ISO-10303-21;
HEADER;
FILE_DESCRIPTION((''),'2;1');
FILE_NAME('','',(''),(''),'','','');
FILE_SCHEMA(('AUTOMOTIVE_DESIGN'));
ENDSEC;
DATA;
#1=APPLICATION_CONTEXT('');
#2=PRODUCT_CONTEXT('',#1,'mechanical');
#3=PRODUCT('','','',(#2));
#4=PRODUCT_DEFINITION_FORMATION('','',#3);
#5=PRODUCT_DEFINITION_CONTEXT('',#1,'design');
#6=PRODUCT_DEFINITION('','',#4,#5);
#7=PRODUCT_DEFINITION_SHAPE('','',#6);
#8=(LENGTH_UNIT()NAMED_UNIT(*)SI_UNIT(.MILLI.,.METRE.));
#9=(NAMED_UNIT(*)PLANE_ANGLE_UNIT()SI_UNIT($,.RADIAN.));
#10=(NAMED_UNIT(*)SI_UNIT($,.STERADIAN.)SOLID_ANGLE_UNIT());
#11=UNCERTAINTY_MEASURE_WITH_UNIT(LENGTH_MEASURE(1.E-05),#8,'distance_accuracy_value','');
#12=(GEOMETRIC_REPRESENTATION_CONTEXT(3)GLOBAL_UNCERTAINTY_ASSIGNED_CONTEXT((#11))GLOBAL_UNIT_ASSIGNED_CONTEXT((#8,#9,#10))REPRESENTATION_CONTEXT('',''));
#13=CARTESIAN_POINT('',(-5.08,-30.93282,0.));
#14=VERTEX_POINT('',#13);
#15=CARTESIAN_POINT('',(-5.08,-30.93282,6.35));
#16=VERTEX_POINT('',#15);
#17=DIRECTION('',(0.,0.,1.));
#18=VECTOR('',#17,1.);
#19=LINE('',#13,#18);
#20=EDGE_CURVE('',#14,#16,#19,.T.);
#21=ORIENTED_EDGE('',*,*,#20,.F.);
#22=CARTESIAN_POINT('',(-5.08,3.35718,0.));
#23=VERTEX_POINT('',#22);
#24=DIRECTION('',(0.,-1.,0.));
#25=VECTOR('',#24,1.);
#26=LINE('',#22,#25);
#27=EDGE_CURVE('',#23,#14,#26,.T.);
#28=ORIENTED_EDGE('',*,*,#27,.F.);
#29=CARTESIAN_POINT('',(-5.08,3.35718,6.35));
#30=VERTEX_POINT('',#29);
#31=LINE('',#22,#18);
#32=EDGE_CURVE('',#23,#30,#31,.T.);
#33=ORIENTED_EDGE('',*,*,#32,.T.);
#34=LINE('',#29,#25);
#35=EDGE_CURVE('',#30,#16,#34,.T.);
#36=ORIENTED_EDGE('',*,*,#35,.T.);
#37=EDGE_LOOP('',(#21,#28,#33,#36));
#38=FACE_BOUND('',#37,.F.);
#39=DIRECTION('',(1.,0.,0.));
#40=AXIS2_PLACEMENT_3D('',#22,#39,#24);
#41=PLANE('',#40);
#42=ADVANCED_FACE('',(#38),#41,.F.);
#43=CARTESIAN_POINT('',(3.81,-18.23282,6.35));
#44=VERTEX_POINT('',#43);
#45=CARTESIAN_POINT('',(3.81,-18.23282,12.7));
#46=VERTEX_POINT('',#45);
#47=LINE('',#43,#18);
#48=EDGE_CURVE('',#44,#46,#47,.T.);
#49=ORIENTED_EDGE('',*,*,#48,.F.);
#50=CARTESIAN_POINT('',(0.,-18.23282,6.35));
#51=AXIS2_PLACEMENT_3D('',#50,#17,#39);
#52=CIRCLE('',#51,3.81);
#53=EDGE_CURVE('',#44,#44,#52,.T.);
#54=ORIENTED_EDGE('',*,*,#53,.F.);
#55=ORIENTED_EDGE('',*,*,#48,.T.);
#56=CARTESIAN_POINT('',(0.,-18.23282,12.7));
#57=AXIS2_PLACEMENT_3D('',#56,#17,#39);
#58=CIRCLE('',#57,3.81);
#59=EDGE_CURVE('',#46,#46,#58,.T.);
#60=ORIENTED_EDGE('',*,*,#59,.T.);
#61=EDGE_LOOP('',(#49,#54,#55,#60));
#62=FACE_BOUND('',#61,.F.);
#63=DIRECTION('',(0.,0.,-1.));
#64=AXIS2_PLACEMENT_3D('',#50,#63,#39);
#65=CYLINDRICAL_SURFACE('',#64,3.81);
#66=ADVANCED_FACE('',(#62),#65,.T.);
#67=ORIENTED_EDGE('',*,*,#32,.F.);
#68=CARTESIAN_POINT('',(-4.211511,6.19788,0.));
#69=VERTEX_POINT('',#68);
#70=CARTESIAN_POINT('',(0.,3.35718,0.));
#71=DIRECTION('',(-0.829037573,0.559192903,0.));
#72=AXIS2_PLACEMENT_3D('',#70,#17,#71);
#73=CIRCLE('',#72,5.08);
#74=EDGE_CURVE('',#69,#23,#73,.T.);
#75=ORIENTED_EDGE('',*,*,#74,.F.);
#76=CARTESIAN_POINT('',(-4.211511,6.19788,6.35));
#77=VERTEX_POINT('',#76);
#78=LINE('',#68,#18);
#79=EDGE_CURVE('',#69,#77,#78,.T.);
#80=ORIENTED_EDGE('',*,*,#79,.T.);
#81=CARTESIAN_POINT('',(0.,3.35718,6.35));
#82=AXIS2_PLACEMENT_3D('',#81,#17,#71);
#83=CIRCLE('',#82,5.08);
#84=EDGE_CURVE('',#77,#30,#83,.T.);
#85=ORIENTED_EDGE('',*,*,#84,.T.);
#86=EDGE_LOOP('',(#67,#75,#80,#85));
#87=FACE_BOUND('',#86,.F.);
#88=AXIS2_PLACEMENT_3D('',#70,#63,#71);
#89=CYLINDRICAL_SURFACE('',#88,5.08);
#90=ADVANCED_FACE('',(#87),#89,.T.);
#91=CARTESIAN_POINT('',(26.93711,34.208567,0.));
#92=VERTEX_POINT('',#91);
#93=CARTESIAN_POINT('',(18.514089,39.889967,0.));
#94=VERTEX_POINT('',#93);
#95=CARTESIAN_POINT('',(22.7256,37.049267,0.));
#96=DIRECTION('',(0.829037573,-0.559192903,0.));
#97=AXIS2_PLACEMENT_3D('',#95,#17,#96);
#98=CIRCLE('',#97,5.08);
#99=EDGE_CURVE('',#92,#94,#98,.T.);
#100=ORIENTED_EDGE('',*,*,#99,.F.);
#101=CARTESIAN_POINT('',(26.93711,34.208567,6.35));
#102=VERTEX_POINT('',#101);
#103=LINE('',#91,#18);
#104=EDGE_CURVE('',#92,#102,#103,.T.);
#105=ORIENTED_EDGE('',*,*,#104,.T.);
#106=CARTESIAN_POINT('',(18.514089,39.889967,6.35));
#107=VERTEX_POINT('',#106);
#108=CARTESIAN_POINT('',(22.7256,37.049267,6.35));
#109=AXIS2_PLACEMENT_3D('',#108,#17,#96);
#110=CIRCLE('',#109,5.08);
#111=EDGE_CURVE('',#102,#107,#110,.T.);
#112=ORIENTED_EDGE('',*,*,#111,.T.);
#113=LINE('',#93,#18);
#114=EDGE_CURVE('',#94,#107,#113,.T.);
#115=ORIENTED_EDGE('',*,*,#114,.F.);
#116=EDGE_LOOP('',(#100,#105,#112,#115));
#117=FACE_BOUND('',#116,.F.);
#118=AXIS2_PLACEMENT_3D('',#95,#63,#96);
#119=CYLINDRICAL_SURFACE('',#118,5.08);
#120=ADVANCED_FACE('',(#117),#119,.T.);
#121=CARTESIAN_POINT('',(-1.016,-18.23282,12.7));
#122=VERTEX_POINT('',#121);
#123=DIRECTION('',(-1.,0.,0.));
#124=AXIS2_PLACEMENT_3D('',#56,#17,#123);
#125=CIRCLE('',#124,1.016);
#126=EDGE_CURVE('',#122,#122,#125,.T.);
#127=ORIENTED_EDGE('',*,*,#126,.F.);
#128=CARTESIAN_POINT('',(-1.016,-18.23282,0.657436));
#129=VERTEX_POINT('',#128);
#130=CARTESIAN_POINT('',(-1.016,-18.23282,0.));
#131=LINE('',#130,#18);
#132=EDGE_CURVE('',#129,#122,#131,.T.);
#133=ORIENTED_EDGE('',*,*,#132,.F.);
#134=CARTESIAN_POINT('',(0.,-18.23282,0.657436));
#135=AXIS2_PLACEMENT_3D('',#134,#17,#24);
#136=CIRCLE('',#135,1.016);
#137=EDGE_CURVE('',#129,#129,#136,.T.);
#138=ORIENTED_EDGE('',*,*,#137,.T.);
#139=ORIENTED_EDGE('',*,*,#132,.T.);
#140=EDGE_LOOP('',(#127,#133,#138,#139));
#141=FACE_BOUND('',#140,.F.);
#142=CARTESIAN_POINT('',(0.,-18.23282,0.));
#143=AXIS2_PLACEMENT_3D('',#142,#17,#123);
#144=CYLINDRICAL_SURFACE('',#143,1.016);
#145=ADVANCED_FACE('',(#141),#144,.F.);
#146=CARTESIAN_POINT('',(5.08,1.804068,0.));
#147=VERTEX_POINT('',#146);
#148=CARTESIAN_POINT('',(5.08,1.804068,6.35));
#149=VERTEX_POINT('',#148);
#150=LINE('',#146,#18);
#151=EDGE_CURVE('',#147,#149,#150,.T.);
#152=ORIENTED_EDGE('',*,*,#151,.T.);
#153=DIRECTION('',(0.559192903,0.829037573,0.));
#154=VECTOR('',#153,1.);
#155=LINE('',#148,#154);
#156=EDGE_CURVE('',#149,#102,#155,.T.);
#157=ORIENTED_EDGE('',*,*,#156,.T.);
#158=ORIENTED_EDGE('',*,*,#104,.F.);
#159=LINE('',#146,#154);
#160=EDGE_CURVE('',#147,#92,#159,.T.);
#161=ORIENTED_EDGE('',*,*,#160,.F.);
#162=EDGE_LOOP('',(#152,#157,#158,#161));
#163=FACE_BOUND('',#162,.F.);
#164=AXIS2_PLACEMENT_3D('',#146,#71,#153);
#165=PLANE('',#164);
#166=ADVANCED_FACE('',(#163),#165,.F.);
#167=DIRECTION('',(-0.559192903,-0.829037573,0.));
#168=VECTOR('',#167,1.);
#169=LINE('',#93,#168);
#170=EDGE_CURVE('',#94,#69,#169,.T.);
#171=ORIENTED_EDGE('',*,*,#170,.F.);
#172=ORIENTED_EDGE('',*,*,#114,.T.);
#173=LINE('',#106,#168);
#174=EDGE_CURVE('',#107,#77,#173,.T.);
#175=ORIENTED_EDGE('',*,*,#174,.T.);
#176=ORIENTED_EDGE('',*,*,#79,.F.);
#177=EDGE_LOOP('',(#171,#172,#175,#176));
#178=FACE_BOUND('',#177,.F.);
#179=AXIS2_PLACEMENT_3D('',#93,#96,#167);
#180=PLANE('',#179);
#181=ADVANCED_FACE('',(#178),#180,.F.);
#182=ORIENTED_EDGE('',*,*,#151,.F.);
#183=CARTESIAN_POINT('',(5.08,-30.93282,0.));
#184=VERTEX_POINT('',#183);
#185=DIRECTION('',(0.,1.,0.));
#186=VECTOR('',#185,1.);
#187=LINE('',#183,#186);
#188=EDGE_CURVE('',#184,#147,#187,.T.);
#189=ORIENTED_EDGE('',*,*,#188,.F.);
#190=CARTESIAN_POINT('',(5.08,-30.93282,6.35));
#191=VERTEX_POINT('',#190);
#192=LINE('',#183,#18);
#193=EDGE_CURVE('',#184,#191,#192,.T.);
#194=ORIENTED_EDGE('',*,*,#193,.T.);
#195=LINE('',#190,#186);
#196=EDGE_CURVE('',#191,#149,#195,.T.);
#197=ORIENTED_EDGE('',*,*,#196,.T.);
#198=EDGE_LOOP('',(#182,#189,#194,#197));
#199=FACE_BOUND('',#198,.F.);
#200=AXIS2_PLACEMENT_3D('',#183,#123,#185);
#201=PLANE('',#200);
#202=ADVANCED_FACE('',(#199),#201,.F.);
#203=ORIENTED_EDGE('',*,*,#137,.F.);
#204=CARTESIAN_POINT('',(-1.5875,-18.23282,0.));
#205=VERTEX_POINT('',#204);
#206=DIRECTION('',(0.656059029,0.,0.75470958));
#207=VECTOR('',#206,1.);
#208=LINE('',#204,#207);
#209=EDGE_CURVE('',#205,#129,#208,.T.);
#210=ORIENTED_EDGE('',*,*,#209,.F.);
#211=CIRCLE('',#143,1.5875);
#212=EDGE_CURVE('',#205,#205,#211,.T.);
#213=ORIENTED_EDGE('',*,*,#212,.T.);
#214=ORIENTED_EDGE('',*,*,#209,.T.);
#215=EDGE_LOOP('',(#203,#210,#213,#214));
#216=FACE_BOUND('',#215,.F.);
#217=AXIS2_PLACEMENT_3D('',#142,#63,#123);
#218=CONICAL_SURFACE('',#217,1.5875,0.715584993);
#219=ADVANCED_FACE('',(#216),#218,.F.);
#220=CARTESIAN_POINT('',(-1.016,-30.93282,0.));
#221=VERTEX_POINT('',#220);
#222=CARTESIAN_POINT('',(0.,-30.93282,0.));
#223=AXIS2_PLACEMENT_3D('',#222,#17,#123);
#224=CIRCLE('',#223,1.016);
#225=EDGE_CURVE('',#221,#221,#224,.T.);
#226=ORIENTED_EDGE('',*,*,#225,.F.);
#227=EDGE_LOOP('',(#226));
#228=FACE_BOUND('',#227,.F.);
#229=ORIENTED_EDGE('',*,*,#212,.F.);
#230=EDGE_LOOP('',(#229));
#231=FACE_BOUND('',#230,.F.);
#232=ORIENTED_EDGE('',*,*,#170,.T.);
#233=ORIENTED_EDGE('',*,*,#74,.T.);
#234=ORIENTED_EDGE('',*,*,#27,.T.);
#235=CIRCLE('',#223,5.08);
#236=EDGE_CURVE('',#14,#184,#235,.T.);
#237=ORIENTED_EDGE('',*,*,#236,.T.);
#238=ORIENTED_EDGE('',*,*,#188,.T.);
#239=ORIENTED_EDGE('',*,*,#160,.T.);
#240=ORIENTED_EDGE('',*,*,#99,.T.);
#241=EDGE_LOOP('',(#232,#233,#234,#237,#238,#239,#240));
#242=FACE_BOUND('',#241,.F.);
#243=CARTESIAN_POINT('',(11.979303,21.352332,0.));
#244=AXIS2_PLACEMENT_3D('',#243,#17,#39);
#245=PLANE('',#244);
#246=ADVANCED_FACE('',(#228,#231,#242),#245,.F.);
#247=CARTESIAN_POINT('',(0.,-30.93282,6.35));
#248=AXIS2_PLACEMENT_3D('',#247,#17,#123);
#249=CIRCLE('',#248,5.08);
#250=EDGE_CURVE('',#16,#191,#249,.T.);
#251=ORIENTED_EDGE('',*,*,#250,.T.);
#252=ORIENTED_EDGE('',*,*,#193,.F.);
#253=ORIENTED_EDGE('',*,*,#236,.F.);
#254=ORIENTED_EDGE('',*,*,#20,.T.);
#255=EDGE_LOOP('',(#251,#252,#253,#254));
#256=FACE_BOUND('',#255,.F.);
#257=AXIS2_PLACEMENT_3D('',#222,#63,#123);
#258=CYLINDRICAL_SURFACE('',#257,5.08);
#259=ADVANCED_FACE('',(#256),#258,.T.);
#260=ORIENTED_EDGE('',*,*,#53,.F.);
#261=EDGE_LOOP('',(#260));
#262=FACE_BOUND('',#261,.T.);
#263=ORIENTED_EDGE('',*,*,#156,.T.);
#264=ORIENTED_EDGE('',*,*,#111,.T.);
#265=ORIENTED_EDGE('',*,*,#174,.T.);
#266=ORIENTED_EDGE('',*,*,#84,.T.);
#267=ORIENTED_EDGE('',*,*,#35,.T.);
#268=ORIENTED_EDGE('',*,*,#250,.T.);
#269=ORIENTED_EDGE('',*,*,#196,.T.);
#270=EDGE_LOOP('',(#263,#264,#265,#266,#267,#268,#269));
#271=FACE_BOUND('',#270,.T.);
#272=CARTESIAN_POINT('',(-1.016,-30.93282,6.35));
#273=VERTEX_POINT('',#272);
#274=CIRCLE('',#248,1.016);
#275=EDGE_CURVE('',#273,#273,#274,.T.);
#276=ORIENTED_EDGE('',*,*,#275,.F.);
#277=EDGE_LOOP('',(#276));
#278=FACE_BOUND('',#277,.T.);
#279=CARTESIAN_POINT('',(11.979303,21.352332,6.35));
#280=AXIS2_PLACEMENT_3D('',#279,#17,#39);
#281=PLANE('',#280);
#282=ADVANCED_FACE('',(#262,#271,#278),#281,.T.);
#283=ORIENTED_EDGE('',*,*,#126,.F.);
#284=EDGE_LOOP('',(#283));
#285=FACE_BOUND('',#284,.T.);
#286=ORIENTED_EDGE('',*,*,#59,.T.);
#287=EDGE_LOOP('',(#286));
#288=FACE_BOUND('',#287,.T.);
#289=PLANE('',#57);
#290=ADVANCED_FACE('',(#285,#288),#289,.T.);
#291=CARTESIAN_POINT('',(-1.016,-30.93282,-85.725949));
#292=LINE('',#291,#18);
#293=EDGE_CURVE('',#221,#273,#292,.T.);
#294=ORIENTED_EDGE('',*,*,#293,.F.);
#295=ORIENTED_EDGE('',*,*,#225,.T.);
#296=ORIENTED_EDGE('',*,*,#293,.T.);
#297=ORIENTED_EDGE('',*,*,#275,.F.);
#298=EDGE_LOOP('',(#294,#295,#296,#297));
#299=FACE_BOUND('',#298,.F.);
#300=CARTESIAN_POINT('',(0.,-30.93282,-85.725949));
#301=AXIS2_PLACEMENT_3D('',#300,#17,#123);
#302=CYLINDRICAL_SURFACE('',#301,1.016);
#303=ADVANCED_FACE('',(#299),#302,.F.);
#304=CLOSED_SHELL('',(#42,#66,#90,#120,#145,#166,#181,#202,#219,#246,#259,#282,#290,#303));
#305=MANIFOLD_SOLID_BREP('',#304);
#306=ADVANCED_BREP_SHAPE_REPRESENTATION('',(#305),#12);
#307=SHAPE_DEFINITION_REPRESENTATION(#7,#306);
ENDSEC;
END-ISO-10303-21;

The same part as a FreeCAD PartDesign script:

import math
import FreeCAD as App
import Part
import Sketcher

V = App.Vector
Q = App.Units.Quantity

doc = App.newDocument("Part")
body = doc.addObject("PartDesign::Body", "Body")

# Sketch on XY plane
sketch1 = body.newObject("Sketcher::SketchObject", "Sketch")
sketch1.AttachmentSupport = (doc.getObject("XY_Plane"), [""])
sketch1.MapMode = "FlatFace"
sketch1.addGeometry([
    Part.LineSegment(V(-5.1, 3.4, 0), V(-5.1, -30.9, 0)),  # 0
    Part.ArcOfCircle(Part.Circle(V(0, -30.9, 0), V(0, 0, 1), 5.1), math.radians(180), math.radians(360)),  # 1
    Part.LineSegment(V(5.1, -30.9, 0), V(5.1, 1.8, 0)),  # 2
    Part.LineSegment(V(5.1, 1.8, 0), V(26.9, 34.2, 0)),  # 3
    Part.ArcOfCircle(Part.Circle(V(22.7, 37, 0), V(0, 0, 1), 5.1), math.radians(-34), math.radians(146)),  # 4
    Part.LineSegment(V(18.5, 39.9, 0), V(-4.2, 6.2, 0)),  # 5
    Part.ArcOfCircle(Part.Circle(V(0, 3.4, 0), V(0, 0, 1), 5.1), math.radians(146), math.radians(180)),  # 6
], False)
sketch1.addConstraint([
    Sketcher.Constraint("Tangent", 0, 2, 1, 1),
    Sketcher.Constraint("Tangent", 1, 2, 2, 1),
    Sketcher.Constraint("Coincident", 2, 2, 3, 1),
    Sketcher.Constraint("Tangent", 3, 2, 4, 1),
    Sketcher.Constraint("Tangent", 4, 2, 5, 1),
    Sketcher.Constraint("Tangent", 5, 2, 6, 1),
    Sketcher.Constraint("Tangent", 6, 2, 0, 1),
    Sketcher.Constraint("Vertical", 0),
    Sketcher.Constraint("Vertical", 2),
    Sketcher.Constraint("Equal", 1, 4),
    Sketcher.Constraint("Equal", 4, 6),
    Sketcher.Constraint("PointOnObject", 1, 3, -2),
    Sketcher.Constraint("Parallel", 3, 5),
    Sketcher.Constraint("Radius", 1, Q("0.2 in")),
    Sketcher.Constraint("Angle", 3, Q("56 deg")),
    Sketcher.Constraint("Distance", 5, Q("1.6 in")),
    Sketcher.Constraint("DistanceY", 0, 2, 0, 1, Q("1.35 in")),
    Sketcher.Constraint("DistanceY", 1, 3, -1, 1, 30.93282),
])
pad1 = body.newObject("PartDesign::Pad", "Pad")
pad1.Profile = sketch1
pad1.Length = Q("0.25 in")

# Sketch on XY plane
sketch2 = body.newObject("Sketcher::SketchObject", "Sketch001")
sketch2.AttachmentSupport = (doc.getObject("XY_Plane"), [""])
sketch2.MapMode = "FlatFace"
sketch2.AttachmentOffset = App.Placement(V(0, 0, 0.25 * 25.4), App.Rotation())
sketch2.addGeometry(Part.Circle(V(0, -18.2, 0), V(0, 0, 1), 3.8), False)
sketch2.addConstraint([
    Sketcher.Constraint("PointOnObject", 0, 3, -2),
    Sketcher.Constraint("Diameter", 0, Q("0.3 in")),
    Sketcher.Constraint("DistanceY", 0, 3, -1, 1, 18.23282),
])
pad2 = body.newObject("PartDesign::Pad", "Pad001")
pad2.Profile = sketch2
pad2.Length = Q("0.25 in")

# Sketch on XY plane
sketch3 = body.newObject("Sketcher::SketchObject", "Sketch002")
sketch3.AttachmentSupport = (doc.getObject("XY_Plane"), [""])
sketch3.MapMode = "FlatFace"
sketch3.addGeometry(Part.Circle(V(0, -18.2, 0), V(0, 0, 1), 1), False)
sketch3.addConstraint([
    Sketcher.Constraint("PointOnObject", 0, 3, -2),
    Sketcher.Constraint("Diameter", 0, Q("0.08 in")),
    Sketcher.Constraint("DistanceY", 0, 3, -1, 1, 18.23282),
])
doc.recompute()
hole = body.newObject("PartDesign::Hole", "Hole")
hole.Profile = sketch3
hole.ThreadType = "None"
hole.Diameter = Q("0.08 in")
hole.DepthType = "ThroughAll"
hole.HoleCutType = "Countersink"
hole.HoleCutDiameter = Q("0.125 in")
hole.HoleCutCountersinkAngle = 82
hole.Reversed = True

# Sketch on XY plane
sketch4 = body.newObject("Sketcher::SketchObject", "Sketch003")
sketch4.AttachmentSupport = (doc.getObject("XY_Plane"), [""])
sketch4.MapMode = "FlatFace"
sketch4.addGeometry(Part.Circle(V(0, -30.9, 0), V(0, 0, 1), 1), False)
sketch4.addConstraint([
    Sketcher.Constraint("PointOnObject", 0, 3, -2),
    Sketcher.Constraint("Diameter", 0, Q("0.08 in")),
    Sketcher.Constraint("DistanceY", 0, 3, -1, 1, 30.93282),
])
doc.recompute()
hole2 = body.newObject("PartDesign::Hole", "Hole001")
hole2.Profile = sketch4
hole2.ThreadType = "None"
hole2.Diameter = Q("0.08 in")
hole2.DepthType = "ThroughAll"
hole2.Reversed = True

doc.recompute()
